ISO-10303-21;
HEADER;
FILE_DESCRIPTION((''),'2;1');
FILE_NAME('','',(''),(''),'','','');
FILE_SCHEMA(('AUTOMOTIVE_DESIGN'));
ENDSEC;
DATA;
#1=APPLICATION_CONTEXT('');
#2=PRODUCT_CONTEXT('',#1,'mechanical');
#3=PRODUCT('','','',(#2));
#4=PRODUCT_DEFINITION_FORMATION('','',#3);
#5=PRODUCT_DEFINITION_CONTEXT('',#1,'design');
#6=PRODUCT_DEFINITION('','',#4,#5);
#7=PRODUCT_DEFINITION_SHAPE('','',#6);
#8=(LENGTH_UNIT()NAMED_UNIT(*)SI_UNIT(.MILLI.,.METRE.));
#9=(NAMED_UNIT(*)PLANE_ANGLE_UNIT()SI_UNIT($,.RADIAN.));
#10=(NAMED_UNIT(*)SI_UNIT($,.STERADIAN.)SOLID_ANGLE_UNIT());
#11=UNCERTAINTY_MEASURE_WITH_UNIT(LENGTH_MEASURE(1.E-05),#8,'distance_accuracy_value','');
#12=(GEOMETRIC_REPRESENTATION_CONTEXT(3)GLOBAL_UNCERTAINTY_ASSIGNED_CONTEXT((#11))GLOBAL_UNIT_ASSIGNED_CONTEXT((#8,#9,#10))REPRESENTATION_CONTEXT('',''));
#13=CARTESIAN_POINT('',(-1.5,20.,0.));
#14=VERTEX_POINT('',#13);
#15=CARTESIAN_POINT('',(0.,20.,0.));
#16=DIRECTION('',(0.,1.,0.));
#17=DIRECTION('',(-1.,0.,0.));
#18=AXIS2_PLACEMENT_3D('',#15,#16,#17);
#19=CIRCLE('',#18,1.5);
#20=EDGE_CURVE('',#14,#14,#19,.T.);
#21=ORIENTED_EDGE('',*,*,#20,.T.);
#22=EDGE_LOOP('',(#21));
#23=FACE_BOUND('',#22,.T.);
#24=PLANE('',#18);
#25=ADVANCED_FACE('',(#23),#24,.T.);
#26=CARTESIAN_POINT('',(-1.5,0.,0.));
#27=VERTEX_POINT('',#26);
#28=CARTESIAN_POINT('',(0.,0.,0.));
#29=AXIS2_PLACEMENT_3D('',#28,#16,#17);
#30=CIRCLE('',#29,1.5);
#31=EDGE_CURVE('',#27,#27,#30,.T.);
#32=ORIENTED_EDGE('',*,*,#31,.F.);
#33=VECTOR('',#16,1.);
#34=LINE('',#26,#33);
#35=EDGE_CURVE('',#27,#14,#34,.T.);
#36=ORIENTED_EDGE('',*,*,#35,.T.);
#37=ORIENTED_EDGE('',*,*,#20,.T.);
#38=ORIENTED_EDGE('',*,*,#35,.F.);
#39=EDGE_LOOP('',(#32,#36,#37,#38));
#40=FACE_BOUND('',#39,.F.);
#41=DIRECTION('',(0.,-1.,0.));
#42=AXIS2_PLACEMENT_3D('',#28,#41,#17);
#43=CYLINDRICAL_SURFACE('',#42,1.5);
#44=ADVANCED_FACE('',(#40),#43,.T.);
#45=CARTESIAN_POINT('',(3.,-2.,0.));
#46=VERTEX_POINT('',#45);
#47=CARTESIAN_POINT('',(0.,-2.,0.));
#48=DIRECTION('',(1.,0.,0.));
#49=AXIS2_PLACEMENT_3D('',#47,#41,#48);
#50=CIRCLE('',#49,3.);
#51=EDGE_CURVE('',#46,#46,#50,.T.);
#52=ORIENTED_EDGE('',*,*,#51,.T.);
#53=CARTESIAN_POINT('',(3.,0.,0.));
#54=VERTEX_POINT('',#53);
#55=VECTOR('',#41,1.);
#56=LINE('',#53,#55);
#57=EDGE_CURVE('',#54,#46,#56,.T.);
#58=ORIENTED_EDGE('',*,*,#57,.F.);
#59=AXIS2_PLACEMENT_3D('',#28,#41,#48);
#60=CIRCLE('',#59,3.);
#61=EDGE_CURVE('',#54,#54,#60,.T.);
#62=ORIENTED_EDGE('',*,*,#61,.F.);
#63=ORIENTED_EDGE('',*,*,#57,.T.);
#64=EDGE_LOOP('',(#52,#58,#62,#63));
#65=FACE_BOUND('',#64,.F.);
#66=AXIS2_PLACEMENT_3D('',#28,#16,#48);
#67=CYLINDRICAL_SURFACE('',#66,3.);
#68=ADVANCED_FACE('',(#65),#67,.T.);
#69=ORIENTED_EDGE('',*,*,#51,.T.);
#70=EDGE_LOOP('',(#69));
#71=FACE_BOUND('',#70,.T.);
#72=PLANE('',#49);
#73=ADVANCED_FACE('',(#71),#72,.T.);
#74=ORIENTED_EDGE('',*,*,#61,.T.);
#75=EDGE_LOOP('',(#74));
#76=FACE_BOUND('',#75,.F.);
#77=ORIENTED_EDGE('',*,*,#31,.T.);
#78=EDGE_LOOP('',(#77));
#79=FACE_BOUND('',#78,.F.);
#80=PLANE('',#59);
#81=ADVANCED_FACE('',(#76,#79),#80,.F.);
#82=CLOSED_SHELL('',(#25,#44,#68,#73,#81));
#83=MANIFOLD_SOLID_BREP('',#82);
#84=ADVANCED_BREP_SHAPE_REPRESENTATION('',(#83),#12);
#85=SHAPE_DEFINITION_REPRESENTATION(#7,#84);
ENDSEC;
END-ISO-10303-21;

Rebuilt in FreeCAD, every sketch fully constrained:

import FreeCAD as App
import Part
import Sketcher

doc = App.newDocument("Part")
body = doc.addObject("PartDesign::Body", "Body")

sketch1 = body.newObject("Sketcher::SketchObject", "Sketch")
sketch1.AttachmentSupport = (doc.getObject("XZ_Plane"), [""])
sketch1.MapMode = "FlatFace"
sketch1.addGeometry(Part.Circle(App.Vector(0, 0, 0), App.Vector(0, 0, 1), 1.5), False)
sketch1.addConstraint(Sketcher.Constraint("Coincident", 0, 3, -1, 1))
sketch1.addConstraint(Sketcher.Constraint("Diameter", 0, 3.0))
pad1 = body.newObject("PartDesign::Pad", "Pad")
pad1.Profile = sketch1
pad1.Length = 20
pad1.Reversed = True

sketch2 = body.newObject("Sketcher::SketchObject", "Sketch001")
sketch2.AttachmentSupport = (doc.getObject("XZ_Plane"), [""])
sketch2.MapMode = "FlatFace"
sketch2.addGeometry(Part.Circle(App.Vector(0, 0, 0), App.Vector(0, 0, 1), 3), False)
sketch2.addConstraint(Sketcher.Constraint("Coincident", 0, 3, -1, 1))
sketch2.addConstraint(Sketcher.Constraint("Diameter", 0, 6.0))
pad2 = body.newObject("PartDesign::Pad", "Pad001")
pad2.Profile = sketch2
pad2.Length = 2

doc.recompute()
